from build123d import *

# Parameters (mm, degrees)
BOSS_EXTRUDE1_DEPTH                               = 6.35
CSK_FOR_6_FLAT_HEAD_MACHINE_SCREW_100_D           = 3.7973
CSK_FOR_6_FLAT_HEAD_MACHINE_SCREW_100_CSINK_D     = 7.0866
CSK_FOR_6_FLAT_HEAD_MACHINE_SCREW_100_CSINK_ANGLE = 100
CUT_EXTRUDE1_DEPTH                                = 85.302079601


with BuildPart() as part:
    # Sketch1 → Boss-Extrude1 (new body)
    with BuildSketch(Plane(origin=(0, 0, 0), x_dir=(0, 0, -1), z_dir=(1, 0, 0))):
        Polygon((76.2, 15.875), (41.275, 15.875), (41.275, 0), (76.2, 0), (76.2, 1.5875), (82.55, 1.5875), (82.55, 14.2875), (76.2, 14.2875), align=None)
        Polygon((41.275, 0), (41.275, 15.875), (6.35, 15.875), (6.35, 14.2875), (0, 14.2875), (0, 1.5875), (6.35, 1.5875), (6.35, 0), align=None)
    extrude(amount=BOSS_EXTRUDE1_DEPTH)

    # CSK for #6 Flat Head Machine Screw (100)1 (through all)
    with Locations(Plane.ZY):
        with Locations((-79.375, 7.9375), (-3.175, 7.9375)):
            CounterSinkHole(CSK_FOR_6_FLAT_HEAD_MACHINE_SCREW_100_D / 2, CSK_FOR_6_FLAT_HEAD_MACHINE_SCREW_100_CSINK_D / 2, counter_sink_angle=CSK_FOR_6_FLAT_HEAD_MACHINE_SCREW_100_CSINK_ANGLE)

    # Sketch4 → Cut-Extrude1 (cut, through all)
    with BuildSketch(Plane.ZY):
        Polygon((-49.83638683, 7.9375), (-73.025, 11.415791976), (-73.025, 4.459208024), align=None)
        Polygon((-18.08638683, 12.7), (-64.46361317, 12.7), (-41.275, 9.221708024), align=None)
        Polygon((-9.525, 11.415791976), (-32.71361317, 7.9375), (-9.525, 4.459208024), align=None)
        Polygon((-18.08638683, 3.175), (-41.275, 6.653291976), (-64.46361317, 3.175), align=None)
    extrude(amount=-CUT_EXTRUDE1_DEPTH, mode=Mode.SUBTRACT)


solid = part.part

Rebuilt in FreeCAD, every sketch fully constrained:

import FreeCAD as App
import Part
import Sketcher
from FreeCAD import Vector
Q = App.Units.Quantity

doc = App.newDocument("Part")
body = doc.addObject("PartDesign::Body", "Body")

# Sketch on YZ plane
sketch1 = body.newObject("Sketcher::SketchObject", "Sketch")
sketch1.AttachmentSupport = (doc.getObject("YZ_Plane"), [""])
sketch1.MapMode = "FlatFace"
sketch1.addGeometry(Part.LineSegment(Vector(15.9, -76.2, 0), Vector(15.9, -6.3, 0)), False)
sketch1.addGeometry(Part.LineSegment(Vector(15.9, -6.3, 0), Vector(14.3, -6.3, 0)), False)
sketch1.addGeometry(Part.LineSegment(Vector(14.3, -6.3, 0), Vector(14.3, 0, 0)), False)
sketch1.addGeometry(Part.LineSegment(Vector(14.3, 0, 0), Vector(1.6, 0, 0)), False)
sketch1.addGeometry(Part.LineSegment(Vector(1.6, 0, 0), Vector(1.6, -6.3, 0)), False)
sketch1.addGeometry(Part.LineSegment(Vector(1.6, -6.3, 0), Vector(0, -6.3, 0)), False)
sketch1.addGeometry(Part.LineSegment(Vector(0, -6.3, 0), Vector(0, -76.2, 0)), False)
sketch1.addGeometry(Part.LineSegment(Vector(0, -76.2, 0), Vector(1.6, -76.2, 0)), False)
sketch1.addGeometry(Part.LineSegment(Vector(1.6, -76.2, 0), Vector(1.6, -82.5, 0)), False)
sketch1.addGeometry(Part.LineSegment(Vector(1.6, -82.5, 0), Vector(14.3, -82.5, 0)), False)
sketch1.addGeometry(Part.LineSegment(Vector(14.3, -82.5, 0), Vector(14.3, -76.2, 0)), False)
sketch1.addGeometry(Part.LineSegment(Vector(14.3, -76.2, 0), Vector(15.9, -76.2, 0)), False)
sketch1.addConstraint(Sketcher.Constraint("Coincident", 0, 2, 1, 1))
sketch1.addConstraint(Sketcher.Constraint("Coincident", 1, 2, 2, 1))
sketch1.addConstraint(Sketcher.Constraint("Coincident", 2, 2, 3, 1))
sketch1.addConstraint(Sketcher.Constraint("Coincident", 3, 2, 4, 1))
sketch1.addConstraint(Sketcher.Constraint("Coincident", 4, 2, 5, 1))
sketch1.addConstraint(Sketcher.Constraint("Coincident", 5, 2, 6, 1))
sketch1.addConstraint(Sketcher.Constraint("Coincident", 6, 2, 7, 1))
sketch1.addConstraint(Sketcher.Constraint("Coincident", 7, 2, 8, 1))
sketch1.addConstraint(Sketcher.Constraint("Coincident", 8, 2, 9, 1))
sketch1.addConstraint(Sketcher.Constraint("Coincident", 9, 2, 10, 1))
sketch1.addConstraint(Sketcher.Constraint("Coincident", 10, 2, 11, 1))
sketch1.addConstraint(Sketcher.Constraint("Coincident", 11, 2, 0, 1))
sketch1.addConstraint(Sketcher.Constraint("Vertical", 0))
sketch1.addConstraint(Sketcher.Constraint("Horizontal", 1))
sketch1.addConstraint(Sketcher.Constraint("Vertical", 2))
sketch1.addConstraint(Sketcher.Constraint("Horizontal", 3))
sketch1.addConstraint(Sketcher.Constraint("Vertical", 4))
sketch1.addConstraint(Sketcher.Constraint("Horizontal", 5))
sketch1.addConstraint(Sketcher.Constraint("Vertical", 6))
sketch1.addConstraint(Sketcher.Constraint("Horizontal", 7))
sketch1.addConstraint(Sketcher.Constraint("Vertical", 8))
sketch1.addConstraint(Sketcher.Constraint("Horizontal", 9))
sketch1.addConstraint(Sketcher.Constraint("Vertical", 10))
sketch1.addConstraint(Sketcher.Constraint("Horizontal", 11))
sketch1.addConstraint(Sketcher.Constraint("PointOnObject", 2, 2, -1))
sketch1.addConstraint(Sketcher.Constraint("PointOnObject", 5, 2, -2))
sketch1.addConstraint(Sketcher.Constraint("Horizontal", 1, 2, 4, 2))
sketch1.addConstraint(Sketcher.Constraint("Horizontal", 7, 2, 10, 2))
sketch1.addConstraint(Sketcher.Constraint("Vertical", 4, 2, 7, 2))
sketch1.addConstraint(Sketcher.Constraint("Vertical", 2, 2, 9, 2))
sketch1.addConstraint(Sketcher.Constraint("Equal", 1, 5))
sketch1.addConstraint(Sketcher.Constraint("Equal", 4, 8))
sketch1.addConstraint(Sketcher.Constraint("DistanceX", 3, 2, 3, 1, Q("0.5 in")))
sketch1.addConstraint(Sketcher.Constraint("DistanceY", 6, 2, -1, 1, Q("3 in")))
sketch1.addConstraint(Sketcher.Constraint("DistanceY", 0, 1, 0, 2, Q("2.75 in")))
sketch1.addConstraint(Sketcher.Constraint("DistanceX", 1, 2, 1, 1, Q("0.0625 in")))
pad1 = body.newObject("PartDesign::Pad", "Pad")
pad1.Profile = sketch1
pad1.Length = Q("0.25 in")

# Sketch on YZ plane
sketch2 = body.newObject("Sketcher::SketchObject", "Sketch001")
sketch2.AttachmentSupport = (doc.getObject("YZ_Plane"), [""])
sketch2.MapMode = "FlatFace"
sketch2.addGeometry(Part.Circle(Vector(7.9, -79.4, 0), Vector(0, 0, 1), 1.9), False)
sketch2.addGeometry(Part.Circle(Vector(7.9, -3.2, 0), Vector(0, 0, 1), 1.9), False)
sketch2.addConstraint(Sketcher.Constraint("Equal", 0, 1))
sketch2.addConstraint(Sketcher.Constraint("Vertical", 0, 3, 1, 3))
sketch2.addConstraint(Sketcher.Constraint("DistanceY", 0, 3, 1, 3, Q("3 in")))
sketch2.addConstraint(Sketcher.Constraint("Diameter", 0, Q("0.1495 in")))
sketch2.addConstraint(Sketcher.Constraint("DistanceX", -1, 1, 0, 3, Q("0.3125 in")))
sketch2.addConstraint(Sketcher.Constraint("DistanceY", 0, 3, -1, 1, Q("3.125 in")))
doc.recompute()
hole = body.newObject("PartDesign::Hole", "Hole")
hole.Profile = sketch2
hole.ThreadType = "None"
hole.Diameter = Q("0.1495 in")
hole.DepthType = "ThroughAll"
hole.HoleCutType = "Countersink"
hole.HoleCutDiameter = Q("0.279 in")
hole.HoleCutCountersinkAngle = 100
hole.Reversed = True

# Sketch on YZ plane
sketch3 = body.newObject("Sketcher::SketchObject", "Sketch002")
sketch3.AttachmentSupport = (doc.getObject("YZ_Plane"), [""])
sketch3.MapMode = "FlatFace"
sketch3.addGeometry(Part.LineSegment(Vector(8, -50, 0), Vector(11, -73, 0)), False)
sketch3.addGeometry(Part.LineSegment(Vector(11, -73, 0), Vector(4, -73, 0)), False)
sketch3.addGeometry(Part.LineSegment(Vector(4, -73, 0), Vector(8, -50, 0)), False)
sketch3.addGeometry(Part.LineSegment(Vector(13, -18, 0), Vector(13, -64, 0)), False)
sketch3.addGeometry(Part.LineSegment(Vector(13, -64, 0), Vector(9, -41, 0)), False)
sketch3.addGeometry(Part.LineSegment(Vector(9, -41, 0), Vector(13, -18, 0)), False)
sketch3.addGeometry(Part.LineSegment(Vector(11, -10, 0), Vector(8, -33, 0)), False)
sketch3.addGeometry(Part.LineSegment(Vector(8, -33, 0), Vector(4, -10, 0)), False)
sketch3.addGeometry(Part.LineSegment(Vector(4, -10, 0), Vector(11, -10, 0)), False)
sketch3.addGeometry(Part.LineSegment(Vector(3, -18, 0), Vector(7, -41, 0)), False)
sketch3.addGeometry(Part.LineSegment(Vector(7, -41, 0), Vector(3, -64, 0)), False)
sketch3.addGeometry(Part.LineSegment(Vector(3, -64, 0), Vector(3, -18, 0)), False)
sketch3.addConstraint(Sketcher.Constraint("Coincident", 0, 2, 1, 1))
sketch3.addConstraint(Sketcher.Constraint("Coincident", 1, 2, 2, 1))
sketch3.addConstraint(Sketcher.Constraint("Coincident", 2, 2, 0, 1))
sketch3.addConstraint(Sketcher.Constraint("Coincident", 3, 2, 4, 1))
sketch3.addConstraint(Sketcher.Constraint("Coincident", 4, 2, 5, 1))
sketch3.addConstraint(Sketcher.Constraint("Coincident", 5, 2, 3, 1))
sketch3.addConstraint(Sketcher.Constraint("Coincident", 6, 2, 7, 1))
sketch3.addConstraint(Sketcher.Constraint("Coincident", 7, 2, 8, 1))
sketch3.addConstraint(Sketcher.Constraint("Coincident", 8, 2, 6, 1))
sketch3.addConstraint(Sketcher.Constraint("Coincident", 9, 2, 10, 1))
sketch3.addConstraint(Sketcher.Constraint("Coincident", 10, 2, 11, 1))
sketch3.addConstraint(Sketcher.Constraint("Coincident", 11, 2, 9, 1))
sketch3.addConstraint(Sketcher.Constraint("Horizontal", 1))
sketch3.addConstraint(Sketcher.Constraint("Vertical", 3))
sketch3.addConstraint(Sketcher.Constraint("Horizontal", 8))
sketch3.addConstraint(Sketcher.Constraint("Vertical", 11))
sketch3.addConstraint(Sketcher.Constraint("Parallel", 0, 4))
sketch3.addConstraint(Sketcher.Constraint("Parallel", 2, 5))
sketch3.addConstraint(Sketcher.Constraint("Parallel", 5, 6))
sketch3.addConstraint(Sketcher.Constraint("Parallel", 4, 7))
sketch3.addConstraint(Sketcher.Constraint("Parallel", 7, 9))
sketch3.addConstraint(Sketcher.Constraint("Parallel", 6, 10))
sketch3.addConstraint(Sketcher.Constraint("Horizontal", 4, 2, 9, 2))
sketch3.addConstraint(Sketcher.Constraint("Horizontal", 3, 2, 10, 2))
sketch3.addConstraint(Sketcher.Constraint("Horizontal", 5, 2, 11, 2))
sketch3.addConstraint(Sketcher.Constraint("Vertical", 2, 2, 6, 2))
sketch3.addConstraint(Sketcher.Constraint("Vertical", 1, 2, 7, 2))
sketch3.addConstraint(Sketcher.Constraint("Equal", 2, 4))
sketch3.addConstraint(Sketcher.Constraint("DistanceX", -1, 1, 3, 2, Q("0.5 in")))
sketch3.addConstraint(Sketcher.Constraint("DistanceY", 0, 2, 4, 2, Q("1.25 in")))
sketch3.addConstraint(Sketcher.Constraint("DistanceY", 3, 2, 6, 2, Q("1.25 in")))
sketch3.addConstraint(Sketcher.Constraint("DistanceY", 0, 2, -1, 1, Q("2.875 in")))
sketch3.addConstraint(Sketcher.Constraint("DistanceX", -1, 1, 2, 2, Q("0.3125 in")))
sketch3.addConstraint(Sketcher.Constraint("DistanceX", -1, 1, 10, 2, Q("0.125 in")))
sketch3.addConstraint(Sketcher.Constraint("DistanceX", 1, 2, 1, 1, 6.956584))
sketch3.addConstraint(Sketcher.Constraint("DistanceY", 3, 2, 3, 1, 46.377226))
pocket1 = body.newObject("PartDesign::Pocket", "Pocket")
pocket1.Profile = sketch3
pocket1.Type = "ThroughAll"
pocket1.Reversed = True

doc.recompute()
